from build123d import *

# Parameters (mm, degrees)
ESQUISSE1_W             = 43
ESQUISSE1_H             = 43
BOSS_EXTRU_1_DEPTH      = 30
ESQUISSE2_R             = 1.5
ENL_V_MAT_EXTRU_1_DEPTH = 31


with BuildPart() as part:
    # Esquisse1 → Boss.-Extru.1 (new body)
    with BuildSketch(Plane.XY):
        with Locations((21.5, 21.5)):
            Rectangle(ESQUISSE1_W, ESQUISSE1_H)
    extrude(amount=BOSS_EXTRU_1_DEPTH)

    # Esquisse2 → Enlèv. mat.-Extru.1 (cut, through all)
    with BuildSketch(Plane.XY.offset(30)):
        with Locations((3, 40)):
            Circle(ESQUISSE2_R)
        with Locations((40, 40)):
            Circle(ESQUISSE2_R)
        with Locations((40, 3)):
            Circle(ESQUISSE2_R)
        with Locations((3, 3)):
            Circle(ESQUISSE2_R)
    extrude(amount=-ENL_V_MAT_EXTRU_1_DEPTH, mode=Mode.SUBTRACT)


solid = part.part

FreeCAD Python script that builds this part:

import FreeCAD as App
import Part
import Sketcher

V = App.Vector

doc = App.newDocument("Part")
params = doc.addObject("Spreadsheet::Sheet", "Params")
for row, (alias, value) in enumerate([
    ("sketch1_width", "43 mm"),
    ("pad1_length", "30 mm"),
    ("sketch2_diameter", "3 mm"),
], start=1):
    params.set(f"A{row}", alias)
    params.set(f"B{row}", "=" + value)
    params.setAlias(f"B{row}", alias)

body = doc.addObject("PartDesign::Body", "Body")

# Sketch on XY plane
sketch1 = doc.addObject("Sketcher::SketchObject", "Sketch")
body.addObject(sketch1)
sketch1.AttachmentSupport = (doc.XY_Plane, [""])
sketch1.MapMode = "FlatFace"
sketch1.addGeometry([
    Part.LineSegment(V(0, 43, 0), V(0, 0, 0)),
    Part.LineSegment(V(0, 0, 0), V(43, 0, 0)),
    Part.LineSegment(V(43, 0, 0), V(43, 43, 0)),
    Part.LineSegment(V(43, 43, 0), V(0, 43, 0)),
], False)
sketch1.addConstraint([
    Sketcher.Constraint("Coincident", 0, 2, 1, 1),
    Sketcher.Constraint("Coincident", 1, 2, 2, 1),
    Sketcher.Constraint("Coincident", 2, 2, 3, 1),
    Sketcher.Constraint("Coincident", 3, 2, 0, 1),
    Sketcher.Constraint("Vertical", 0),
    Sketcher.Constraint("Horizontal", 1),
    Sketcher.Constraint("Vertical", 2),
    Sketcher.Constraint("Horizontal", 3),
    Sketcher.Constraint("Coincident", 0, 2, -1, 1),
    Sketcher.Constraint("Equal", 3, 0),
    Sketcher.Constraint("DistanceX", 1, 1, 1, 2, 43.0),
])
sketch1.setExpression("Constraints[10]", "Params.sketch1_width")
pad1 = doc.addObject("PartDesign::Pad", "Pad")
body.addObject(pad1)
pad1.Profile = sketch1
pad1.setExpression("Length", "Params.pad1_length")

# Sketch on XY plane
sketch2 = doc.addObject("Sketcher::SketchObject", "Sketch001")
body.addObject(sketch2)
sketch2.AttachmentSupport = (doc.XY_Plane, [""])
sketch2.MapMode = "FlatFace"
sketch2.AttachmentOffset = App.Placement(V(0, 0, 30), App.Rotation())
sketch2.addGeometry([
    Part.Circle(V(3, 40, 0), V(0, 0, 1), 1.5),
    Part.Circle(V(40, 40, 0), V(0, 0, 1), 1.5),
    Part.Circle(V(40, 3, 0), V(0, 0, 1), 1.5),
    Part.Circle(V(3, 3, 0), V(0, 0, 1), 1.5),
], False)
sketch2.addConstraint([
    Sketcher.Constraint("Equal", 0, 1),
    Sketcher.Constraint("Equal", 1, 2),
    Sketcher.Constraint("Equal", 2, 3),
    Sketcher.Constraint("Horizontal", 0, 3, 1, 3),
    Sketcher.Constraint("Horizontal", 2, 3, 3, 3),
    Sketcher.Constraint("Vertical", 1, 3, 2, 3),
    Sketcher.Constraint("Vertical", 0, 3, 3, 3),
    Sketcher.Constraint("Diameter", 0, 3.0),
    Sketcher.Constraint("DistanceX", -1, 1, 0, 3, 3.0),
    Sketcher.Constraint("DistanceY", -1, 1, 0, 3, 40.0),
    Sketcher.Constraint("DistanceX", -1, 1, 1, 3, 40.0),
    Sketcher.Constraint("DistanceY", -1, 1, 2, 3, 3.0),
])
sketch2.setExpression("Constraints[7]", "Params.sketch2_diameter")
pocket1 = doc.addObject("PartDesign::Pocket", "Pocket")
body.addObject(pocket1)
pocket1.Profile = sketch2
pocket1.Type = "ThroughAll"

doc.recompute()
